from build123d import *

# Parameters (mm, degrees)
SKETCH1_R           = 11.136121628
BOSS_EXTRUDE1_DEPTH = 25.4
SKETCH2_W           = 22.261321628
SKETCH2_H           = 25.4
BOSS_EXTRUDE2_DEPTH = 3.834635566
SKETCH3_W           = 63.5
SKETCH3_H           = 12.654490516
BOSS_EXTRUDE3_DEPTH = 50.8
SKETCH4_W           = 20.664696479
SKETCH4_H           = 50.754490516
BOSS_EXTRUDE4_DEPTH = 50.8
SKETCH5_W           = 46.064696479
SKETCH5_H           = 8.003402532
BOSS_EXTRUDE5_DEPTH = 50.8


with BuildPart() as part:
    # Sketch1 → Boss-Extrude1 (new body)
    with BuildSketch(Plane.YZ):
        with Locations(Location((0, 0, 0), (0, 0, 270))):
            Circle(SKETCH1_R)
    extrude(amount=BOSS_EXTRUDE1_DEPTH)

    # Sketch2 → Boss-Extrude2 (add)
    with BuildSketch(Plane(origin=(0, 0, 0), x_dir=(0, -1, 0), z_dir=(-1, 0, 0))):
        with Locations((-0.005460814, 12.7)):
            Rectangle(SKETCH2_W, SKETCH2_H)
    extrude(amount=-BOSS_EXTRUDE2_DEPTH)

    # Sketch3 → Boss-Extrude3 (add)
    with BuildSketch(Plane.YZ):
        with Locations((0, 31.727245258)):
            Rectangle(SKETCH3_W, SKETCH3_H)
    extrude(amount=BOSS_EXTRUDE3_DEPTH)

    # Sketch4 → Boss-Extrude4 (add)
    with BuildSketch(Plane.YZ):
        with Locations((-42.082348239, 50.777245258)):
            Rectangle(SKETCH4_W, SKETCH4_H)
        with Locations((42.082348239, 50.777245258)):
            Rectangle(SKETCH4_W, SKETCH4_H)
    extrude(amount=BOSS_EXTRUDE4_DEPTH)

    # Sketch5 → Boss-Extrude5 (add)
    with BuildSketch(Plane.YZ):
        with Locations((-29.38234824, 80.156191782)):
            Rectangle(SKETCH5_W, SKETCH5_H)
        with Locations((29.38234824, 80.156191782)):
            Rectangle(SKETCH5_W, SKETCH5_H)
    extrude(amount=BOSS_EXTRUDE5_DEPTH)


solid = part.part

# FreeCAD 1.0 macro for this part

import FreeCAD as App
import Part
import Sketcher

V = App.Vector
Q = App.Units.Quantity


def add_polygon(sketch, points):
    """Adds a closed chain of lines whose ends are joined by coincident constraints."""
    first, n = sketch.GeometryCount, len(points)
    for a, b in zip(points, points[1:] + points[:1]):
        sketch.addGeometry(Part.LineSegment(App.Vector(*a, 0), App.Vector(*b, 0)), False)
    for i in range(n):
        sketch.addConstraint(Sketcher.Constraint("Coincident", first + i, 2, first + (i + 1) % n, 1))

doc = App.newDocument("Part")
params = doc.addObject("Spreadsheet::Sheet", "Params")
for row, (alias, value) in enumerate([
    ("pad1_length", "1 in"),
    ("sketch2_height", "1 in"),
    ("pad2_length", "3.834636 mm"),
    ("sketch3_width", "2.5 in"),
    ("pad3_length", "2 in"),
    ("pad4_length", "2 in"),
    ("pad5_length", "2 in"),
], start=1):
    params.set(f"A{row}", alias)
    params.set(f"B{row}", "=" + value)
    params.setAlias(f"B{row}", alias)

body = doc.addObject("PartDesign::Body", "Body")

sketch1 = body.newObject("Sketcher::SketchObject", "Sketch")
sketch1.AttachmentSupport = (doc.getObject("YZ_Plane"), [""])
sketch1.MapMode = "FlatFace"
sketch1.addGeometry(Part.Circle(V(0, 0, 0), V(0, 0, 1), 11.136122), False)
sketch1.addConstraint(Sketcher.Constraint("Coincident", 0, 3, -1, 1))
sketch1.addConstraint(Sketcher.Constraint("Diameter", 0, 22.272243))
pad1 = body.newObject("PartDesign::Pad", "Pad")
pad1.Profile = sketch1
pad1.setExpression("Length", "Params.pad1_length")

sketch2 = body.newObject("Sketcher::SketchObject", "Sketch001")
sketch2.AttachmentSupport = (doc.getObject("YZ_Plane"), [""])
sketch2.MapMode = "FlatFace"
add_polygon(sketch2, [(11.136122, 25.4), (11.136122, 0), (-11.1252, 0), (-11.1252, 25.4)])
sketch2.addConstraint(Sketcher.Constraint("Vertical", 0))
sketch2.addConstraint(Sketcher.Constraint("Horizontal", 1))
sketch2.addConstraint(Sketcher.Constraint("Vertical", 2))
sketch2.addConstraint(Sketcher.Constraint("Horizontal", 3))
sketch2.addConstraint(Sketcher.Constraint("PointOnObject", 0, 2, -1))
sketch2.addConstraint(Sketcher.Constraint("DistanceY", 0, 2, 0, 1, Q("1 in")))
sketch2.addConstraint(Sketcher.Constraint("DistanceX", 1, 2, -1, 1, Q("0.438 in")))
sketch2.addConstraint(Sketcher.Constraint("DistanceX", 1, 2, 1, 1, 22.261322))
sketch2.setExpression("Constraints[9]", "Params.sketch2_height")
pad2 = body.newObject("PartDesign::Pad", "Pad001")
pad2.Profile = sketch2
pad2.setExpression("Length", "Params.pad2_length")

sketch3 = body.newObject("Sketcher::SketchObject", "Sketch002")
sketch3.AttachmentSupport = (doc.getObject("YZ_Plane"), [""])
sketch3.MapMode = "FlatFace"
add_polygon(sketch3, [(-31.75, 38.054491), (-31.75, 25.4), (31.75, 25.4), (31.75, 38.054491)])
sketch3.addConstraint(Sketcher.Constraint("Vertical", 0))
sketch3.addConstraint(Sketcher.Constraint("Horizontal", 1))
sketch3.addConstraint(Sketcher.Constraint("Vertical", 2))
sketch3.addConstraint(Sketcher.Constraint("Horizontal", 3))
sketch3.addConstraint(Sketcher.Constraint("DistanceX", 1, 1, 1, 2, Q("2.5 in")))
sketch3.addConstraint(Sketcher.Constraint("DistanceY", -1, 1, 0, 2, Q("1 in")))
sketch3.addConstraint(Sketcher.Constraint("DistanceX", 0, 2, -1, 1, Q("1.25 in")))
sketch3.addConstraint(Sketcher.Constraint("DistanceY", 0, 2, 0, 1, 12.654491))
sketch3.setExpression("Constraints[8]", "Params.sketch3_width")
pad3 = body.newObject("PartDesign::Pad", "Pad002")
pad3.Profile = sketch3
pad3.setExpression("Length", "Params.pad3_length")

sketch4 = body.newObject("Sketcher::SketchObject", "Sketch003")
sketch4.AttachmentSupport = (doc.getObject("YZ_Plane"), [""])
sketch4.MapMode = "FlatFace"
add_polygon(sketch4, [(-52.414696, 76.154491), (-52.414696, 25.4), (-31.75, 25.4), (-31.75, 76.154491)])
add_polygon(sketch4, [(31.75, 76.154491), (31.75, 25.4), (52.414696, 25.4), (52.414696, 76.154491)])
sketch4.addConstraint(Sketcher.Constraint("Vertical", 0))
sketch4.addConstraint(Sketcher.Constraint("Horizontal", 1))
sketch4.addConstraint(Sketcher.Constraint("Vertical", 2))
sketch4.addConstraint(Sketcher.Constraint("Horizontal", 3))
sketch4.addConstraint(Sketcher.Constraint("Vertical", 4))
sketch4.addConstraint(Sketcher.Constraint("Horizontal", 5))
sketch4.addConstraint(Sketcher.Constraint("Vertical", 6))
sketch4.addConstraint(Sketcher.Constraint("Horizontal", 7))
sketch4.addConstraint(Sketcher.Constraint("Symmetric", 1, 2, 4, 2, -2))
sketch4.addConstraint(Sketcher.Constraint("Symmetric", 3, 2, 6, 2, -2))
sketch4.addConstraint(Sketcher.Constraint("DistanceY", -1, 1, 0, 2, Q("1 in")))
sketch4.addConstraint(Sketcher.Constraint("DistanceX", 1, 2, 4, 2, Q("2.5 in")))
sketch4.addConstraint(Sketcher.Constraint("DistanceY", 0, 2, 0, 1, 50.754491))
sketch4.addConstraint(Sketcher.Constraint("DistanceX", 1, 1, 1, 2, 20.664696))
pad4 = body.newObject("PartDesign::Pad", "Pad003")
pad4.Profile = sketch4
pad4.setExpression("Length", "Params.pad4_length")

sketch5 = body.newObject("Sketcher::SketchObject", "Sketch004")
sketch5.AttachmentSupport = (doc.getObject("YZ_Plane"), [""])
sketch5.MapMode = "FlatFace"
add_polygon(sketch5, [(-52.414696, 84.157893), (-52.414696, 76.154491), (-6.35, 76.154491), (-6.35, 84.157893)])
add_polygon(sketch5, [(6.35, 84.157893), (6.35, 76.154491), (52.414696, 76.154491), (52.414696, 84.157893)])
sketch5.addConstraint(Sketcher.Constraint("Vertical", 0))
sketch5.addConstraint(Sketcher.Constraint("Horizontal", 1))
sketch5.addConstraint(Sketcher.Constraint("Vertical", 2))
sketch5.addConstraint(Sketcher.Constraint("Horizontal", 3))
sketch5.addConstraint(Sketcher.Constraint("Vertical", 4))
sketch5.addConstraint(Sketcher.Constraint("Horizontal", 5))
sketch5.addConstraint(Sketcher.Constraint("Vertical", 6))
sketch5.addConstraint(Sketcher.Constraint("Horizontal", 7))
sketch5.addConstraint(Sketcher.Constraint("Symmetric", 1, 2, 4, 2, -2))
sketch5.addConstraint(Sketcher.Constraint("Symmetric", 3, 2, 6, 2, -2))
sketch5.addConstraint(Sketcher.Constraint("DistanceX", 1, 2, 4, 2, Q("0.5 in")))
sketch5.addConstraint(Sketcher.Constraint("DistanceX", 1, 1, 1, 2, 46.064696))
sketch5.addConstraint(Sketcher.Constraint("DistanceY", 0, 2, 0, 1, 8.003403))
sketch5.addConstraint(Sketcher.Constraint("DistanceY", -1, 1, 0, 2, 76.154491))
pad5 = body.newObject("PartDesign::Pad", "Pad004")
pad5.Profile = sketch5
pad5.setExpression("Length", "Params.pad5_length")

doc.recompute()
